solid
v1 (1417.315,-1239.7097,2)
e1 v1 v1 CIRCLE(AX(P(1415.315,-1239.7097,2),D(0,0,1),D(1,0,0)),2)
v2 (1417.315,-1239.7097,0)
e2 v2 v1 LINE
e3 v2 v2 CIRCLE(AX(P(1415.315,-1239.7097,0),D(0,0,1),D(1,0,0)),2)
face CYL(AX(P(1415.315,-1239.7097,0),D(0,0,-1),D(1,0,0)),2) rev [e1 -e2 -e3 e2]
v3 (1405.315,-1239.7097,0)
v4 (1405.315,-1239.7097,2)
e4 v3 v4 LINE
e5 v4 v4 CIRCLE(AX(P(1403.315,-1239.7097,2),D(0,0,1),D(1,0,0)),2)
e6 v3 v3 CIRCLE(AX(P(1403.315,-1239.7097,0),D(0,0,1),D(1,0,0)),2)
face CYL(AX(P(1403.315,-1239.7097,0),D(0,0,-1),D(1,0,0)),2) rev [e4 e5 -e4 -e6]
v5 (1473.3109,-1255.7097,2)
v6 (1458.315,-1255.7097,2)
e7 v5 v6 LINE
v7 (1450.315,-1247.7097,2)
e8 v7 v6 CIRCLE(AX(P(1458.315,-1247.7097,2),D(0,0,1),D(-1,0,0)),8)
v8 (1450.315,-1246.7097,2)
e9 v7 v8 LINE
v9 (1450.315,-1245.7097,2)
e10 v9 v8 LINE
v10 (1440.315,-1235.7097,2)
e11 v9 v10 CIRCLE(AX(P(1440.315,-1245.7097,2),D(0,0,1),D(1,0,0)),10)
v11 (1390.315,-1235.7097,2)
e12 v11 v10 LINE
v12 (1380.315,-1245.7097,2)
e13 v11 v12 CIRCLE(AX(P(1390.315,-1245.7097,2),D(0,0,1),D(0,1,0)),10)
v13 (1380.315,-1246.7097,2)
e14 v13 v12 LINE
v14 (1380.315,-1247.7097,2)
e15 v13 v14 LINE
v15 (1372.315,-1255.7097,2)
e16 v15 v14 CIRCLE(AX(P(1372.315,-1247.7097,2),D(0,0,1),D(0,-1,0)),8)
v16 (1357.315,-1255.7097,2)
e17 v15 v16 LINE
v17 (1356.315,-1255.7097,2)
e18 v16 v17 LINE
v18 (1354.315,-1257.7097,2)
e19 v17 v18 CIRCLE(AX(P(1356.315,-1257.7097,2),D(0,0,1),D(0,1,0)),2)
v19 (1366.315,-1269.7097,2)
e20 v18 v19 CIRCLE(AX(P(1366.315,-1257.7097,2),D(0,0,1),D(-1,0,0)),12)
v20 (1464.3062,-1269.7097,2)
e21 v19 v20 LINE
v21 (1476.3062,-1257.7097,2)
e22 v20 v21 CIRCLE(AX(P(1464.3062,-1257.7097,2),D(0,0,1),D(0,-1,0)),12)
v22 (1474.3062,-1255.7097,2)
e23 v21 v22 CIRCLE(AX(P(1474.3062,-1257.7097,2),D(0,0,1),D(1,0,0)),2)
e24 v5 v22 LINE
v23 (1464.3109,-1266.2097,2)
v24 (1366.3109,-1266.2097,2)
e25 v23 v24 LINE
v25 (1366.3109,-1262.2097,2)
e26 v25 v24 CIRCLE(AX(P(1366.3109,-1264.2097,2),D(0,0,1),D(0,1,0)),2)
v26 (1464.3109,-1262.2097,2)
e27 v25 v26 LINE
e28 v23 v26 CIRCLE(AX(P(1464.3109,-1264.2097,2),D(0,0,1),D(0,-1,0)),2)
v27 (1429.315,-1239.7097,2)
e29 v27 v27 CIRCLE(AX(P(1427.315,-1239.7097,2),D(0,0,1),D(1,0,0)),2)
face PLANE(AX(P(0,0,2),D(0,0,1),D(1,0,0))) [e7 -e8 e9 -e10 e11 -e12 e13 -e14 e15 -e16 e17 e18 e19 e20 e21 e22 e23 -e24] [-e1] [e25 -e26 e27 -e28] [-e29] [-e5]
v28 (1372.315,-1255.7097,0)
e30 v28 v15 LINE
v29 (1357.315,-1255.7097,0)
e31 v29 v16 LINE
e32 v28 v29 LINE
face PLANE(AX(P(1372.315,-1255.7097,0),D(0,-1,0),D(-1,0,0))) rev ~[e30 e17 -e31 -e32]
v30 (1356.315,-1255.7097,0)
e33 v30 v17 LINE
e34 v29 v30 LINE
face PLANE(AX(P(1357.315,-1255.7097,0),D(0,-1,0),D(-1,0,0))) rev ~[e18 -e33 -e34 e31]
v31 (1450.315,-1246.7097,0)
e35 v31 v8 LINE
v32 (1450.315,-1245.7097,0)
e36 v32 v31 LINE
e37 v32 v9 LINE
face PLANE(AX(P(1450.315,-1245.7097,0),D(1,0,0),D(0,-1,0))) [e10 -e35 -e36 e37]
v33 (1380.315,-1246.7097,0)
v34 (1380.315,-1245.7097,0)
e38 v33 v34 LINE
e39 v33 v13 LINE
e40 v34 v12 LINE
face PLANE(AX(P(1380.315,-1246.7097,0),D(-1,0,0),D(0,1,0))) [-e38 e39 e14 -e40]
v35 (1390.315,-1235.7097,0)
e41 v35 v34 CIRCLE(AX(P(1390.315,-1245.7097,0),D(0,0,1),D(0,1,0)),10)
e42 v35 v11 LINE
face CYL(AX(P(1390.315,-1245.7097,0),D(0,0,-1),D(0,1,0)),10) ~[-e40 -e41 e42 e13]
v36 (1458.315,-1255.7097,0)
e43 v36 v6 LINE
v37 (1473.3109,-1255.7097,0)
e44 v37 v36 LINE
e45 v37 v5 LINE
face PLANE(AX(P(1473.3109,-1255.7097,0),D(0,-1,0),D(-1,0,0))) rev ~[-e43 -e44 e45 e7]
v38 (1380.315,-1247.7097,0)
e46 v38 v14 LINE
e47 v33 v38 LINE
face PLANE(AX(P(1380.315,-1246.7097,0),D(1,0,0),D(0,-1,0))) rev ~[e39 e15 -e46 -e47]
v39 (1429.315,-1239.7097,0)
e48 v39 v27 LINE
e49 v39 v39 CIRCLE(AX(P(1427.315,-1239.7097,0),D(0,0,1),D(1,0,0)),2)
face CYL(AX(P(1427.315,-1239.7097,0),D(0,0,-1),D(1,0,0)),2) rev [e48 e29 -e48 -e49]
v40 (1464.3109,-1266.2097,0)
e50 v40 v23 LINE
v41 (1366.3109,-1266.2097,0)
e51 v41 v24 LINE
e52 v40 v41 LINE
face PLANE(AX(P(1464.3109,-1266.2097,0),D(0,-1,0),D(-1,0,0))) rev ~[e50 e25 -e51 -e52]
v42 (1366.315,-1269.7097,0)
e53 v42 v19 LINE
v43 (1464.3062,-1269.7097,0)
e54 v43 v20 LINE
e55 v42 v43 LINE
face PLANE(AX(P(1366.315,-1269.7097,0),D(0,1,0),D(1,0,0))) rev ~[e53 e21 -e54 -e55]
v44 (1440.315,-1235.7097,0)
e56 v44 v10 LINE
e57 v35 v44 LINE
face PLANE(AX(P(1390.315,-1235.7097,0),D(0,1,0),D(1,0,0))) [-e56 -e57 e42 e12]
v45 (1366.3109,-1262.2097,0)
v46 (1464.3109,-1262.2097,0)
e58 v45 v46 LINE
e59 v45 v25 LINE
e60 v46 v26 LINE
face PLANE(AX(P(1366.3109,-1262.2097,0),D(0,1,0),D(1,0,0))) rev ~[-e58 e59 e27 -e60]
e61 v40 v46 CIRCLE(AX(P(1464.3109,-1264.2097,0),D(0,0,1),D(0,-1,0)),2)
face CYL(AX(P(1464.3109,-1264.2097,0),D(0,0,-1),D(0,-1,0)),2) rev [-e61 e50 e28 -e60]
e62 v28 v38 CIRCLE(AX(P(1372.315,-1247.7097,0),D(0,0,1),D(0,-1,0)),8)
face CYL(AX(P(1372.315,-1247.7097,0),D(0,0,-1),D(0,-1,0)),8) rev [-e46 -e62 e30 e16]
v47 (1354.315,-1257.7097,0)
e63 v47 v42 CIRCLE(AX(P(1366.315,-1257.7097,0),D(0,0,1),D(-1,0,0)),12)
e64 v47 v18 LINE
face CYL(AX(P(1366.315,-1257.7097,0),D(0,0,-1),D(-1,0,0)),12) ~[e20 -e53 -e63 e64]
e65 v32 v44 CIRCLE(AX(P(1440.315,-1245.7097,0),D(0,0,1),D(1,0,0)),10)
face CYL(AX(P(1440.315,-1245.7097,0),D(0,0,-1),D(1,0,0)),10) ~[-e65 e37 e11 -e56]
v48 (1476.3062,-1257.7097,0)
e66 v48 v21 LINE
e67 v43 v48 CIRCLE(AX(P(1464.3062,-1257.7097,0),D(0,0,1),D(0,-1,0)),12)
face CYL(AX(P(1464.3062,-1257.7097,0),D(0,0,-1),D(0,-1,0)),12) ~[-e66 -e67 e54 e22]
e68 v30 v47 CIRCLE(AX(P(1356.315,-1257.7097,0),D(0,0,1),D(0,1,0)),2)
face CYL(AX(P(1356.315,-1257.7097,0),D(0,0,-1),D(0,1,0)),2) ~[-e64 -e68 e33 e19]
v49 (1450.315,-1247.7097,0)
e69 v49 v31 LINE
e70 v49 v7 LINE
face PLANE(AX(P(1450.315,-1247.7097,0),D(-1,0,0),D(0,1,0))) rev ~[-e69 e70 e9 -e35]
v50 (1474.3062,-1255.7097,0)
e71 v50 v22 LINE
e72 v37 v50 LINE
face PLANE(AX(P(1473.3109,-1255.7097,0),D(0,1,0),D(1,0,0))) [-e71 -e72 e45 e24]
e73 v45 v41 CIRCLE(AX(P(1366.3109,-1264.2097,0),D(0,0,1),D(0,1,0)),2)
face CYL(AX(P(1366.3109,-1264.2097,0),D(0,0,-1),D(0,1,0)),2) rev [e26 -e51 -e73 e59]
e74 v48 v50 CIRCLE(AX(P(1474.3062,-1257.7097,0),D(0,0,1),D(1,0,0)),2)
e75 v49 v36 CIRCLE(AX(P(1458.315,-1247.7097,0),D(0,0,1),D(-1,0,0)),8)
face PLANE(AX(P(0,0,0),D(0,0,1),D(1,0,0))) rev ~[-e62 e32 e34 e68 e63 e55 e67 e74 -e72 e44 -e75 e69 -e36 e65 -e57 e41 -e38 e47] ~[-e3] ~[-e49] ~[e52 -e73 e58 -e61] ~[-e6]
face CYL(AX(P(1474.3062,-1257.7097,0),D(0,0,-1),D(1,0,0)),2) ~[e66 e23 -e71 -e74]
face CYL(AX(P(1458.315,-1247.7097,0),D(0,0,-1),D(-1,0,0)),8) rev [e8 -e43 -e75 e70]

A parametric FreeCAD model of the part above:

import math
import FreeCAD as App
import Part
import Sketcher

V = App.Vector
Q = App.Units.Quantity

doc = App.newDocument("Part")
body = doc.addObject("PartDesign::Body", "Body")

# Sketch on XY plane
sketch1 = body.newObject("Sketcher::SketchObject", "Sketch")
sketch1.AttachmentSupport = (doc.getObject("XY_Plane"), [""])
sketch1.MapMode = "FlatFace"
sketch1.addGeometry([
    Part.LineSegment(V(1380.3, -1245.7, 0), V(1380.3, -1247.7, 0)),  # 0
    Part.ArcOfCircle(Part.Circle(V(1372.3, -1247.7, 0), V(0, 0, 1), 8), math.radians(-90), math.radians(0)),  # 1
    Part.LineSegment(V(1372.3, -1255.7, 0), V(1356.3, -1255.7, 0)),  # 2
    Part.ArcOfCircle(Part.Circle(V(1356.3, -1257.7, 0), V(0, 0, 1), 2), math.radians(90), math.radians(180)),  # 3
    Part.ArcOfCircle(Part.Circle(V(1366.3, -1257.7, 0), V(0, 0, 1), 12), math.radians(180), math.radians(270)),  # 4
    Part.LineSegment(V(1366.3, -1269.7, 0), V(1464.3, -1269.7, 0)),  # 5
    Part.ArcOfCircle(Part.Circle(V(1464.3, -1257.7, 0), V(0, 0, 1), 12), math.radians(-90), math.radians(0)),  # 6
    Part.ArcOfCircle(Part.Circle(V(1474.3, -1257.7, 0), V(0, 0, 1), 2), math.radians(0), math.radians(90)),  # 7
    Part.LineSegment(V(1474.3, -1255.7, 0), V(1458.3, -1255.7, 0)),  # 8
    Part.ArcOfCircle(Part.Circle(V(1458.3, -1247.7, 0), V(0, 0, 1), 8), math.radians(180), math.radians(270)),  # 9
    Part.LineSegment(V(1450.3, -1247.7, 0), V(1450.3, -1245.7, 0)),  # 10
    Part.ArcOfCircle(Part.Circle(V(1440.3, -1245.7, 0), V(0, 0, 1), 10), math.radians(0), math.radians(90)),  # 11
    Part.LineSegment(V(1440.3, -1235.7, 0), V(1390.3, -1235.7, 0)),  # 12
    Part.ArcOfCircle(Part.Circle(V(1390.3, -1245.7, 0), V(0, 0, 1), 10), math.radians(90), math.radians(180)),  # 13
    Part.ArcOfCircle(Part.Circle(V(1366.3, -1264.2, 0), V(0, 0, 1), 2), math.radians(90), math.radians(270)),  # 14
    Part.LineSegment(V(1366.3, -1262.2, 0), V(1464.3, -1262.2, 0)),  # 15
    Part.ArcOfCircle(Part.Circle(V(1464.3, -1264.2, 0), V(0, 0, 1), 2), math.radians(-90), math.radians(90)),  # 16
    Part.LineSegment(V(1464.3, -1266.2, 0), V(1366.3, -1266.2, 0)),  # 17
    Part.Circle(V(1403.3, -1239.7, 0), V(0, 0, 1), 2),  # 18
    Part.Circle(V(1415.3, -1239.7, 0), V(0, 0, 1), 2),  # 19
    Part.Circle(V(1427.3, -1239.7, 0), V(0, 0, 1), 2),  # 20
], False)
sketch1.addConstraint([
    Sketcher.Constraint("Tangent", 0, 2, 1, 2),
    Sketcher.Constraint("Tangent", 1, 1, 2, 1),
    Sketcher.Constraint("Tangent", 2, 2, 3, 1),
    Sketcher.Constraint("Tangent", 3, 2, 4, 1),
    Sketcher.Constraint("Tangent", 4, 2, 5, 1),
    Sketcher.Constraint("Tangent", 5, 2, 6, 1),
    Sketcher.Constraint("Tangent", 6, 2, 7, 1),
    Sketcher.Constraint("Tangent", 7, 2, 8, 1),
    Sketcher.Constraint("Tangent", 8, 2, 9, 2),
    Sketcher.Constraint("Tangent", 9, 1, 10, 1),
    Sketcher.Constraint("Tangent", 10, 2, 11, 1),
    Sketcher.Constraint("Tangent", 11, 2, 12, 1),
    Sketcher.Constraint("Tangent", 12, 2, 13, 1),
    Sketcher.Constraint("Tangent", 13, 2, 0, 1),
    Sketcher.Constraint("Tangent", 14, 1, 15, 1),
    Sketcher.Constraint("Tangent", 15, 2, 16, 2),
    Sketcher.Constraint("Tangent", 16, 1, 17, 1),
    Sketcher.Constraint("Tangent", 17, 2, 14, 2),
    Sketcher.Constraint("Vertical", 0),
    Sketcher.Constraint("Horizontal", 2),
    Sketcher.Constraint("Horizontal", 5),
    Sketcher.Constraint("Horizontal", 8),
    Sketcher.Constraint("Vertical", 10),
    Sketcher.Constraint("Horizontal", 12),
    Sketcher.Constraint("Horizontal", 15),
    Sketcher.Constraint("Horizontal", 17),
    Sketcher.Constraint("Equal", 4, 6),
    Sketcher.Constraint("Equal", 3, 7),
    Sketcher.Constraint("Equal", 1, 9),
    Sketcher.Constraint("Equal", 11, 13),
    Sketcher.Constraint("Equal", 7, 14),
    Sketcher.Constraint("Equal", 16, 18),
    Sketcher.Constraint("Equal", 18, 19),
    Sketcher.Constraint("Equal", 19, 20),
    Sketcher.Constraint("Horizontal", 3, 3, 4, 3),
    Sketcher.Constraint("Horizontal", 6, 3, 7, 3),
    Sketcher.Constraint("Horizontal", 18, 3, 19, 3),
    Sketcher.Constraint("Horizontal", 19, 3, 20, 3),
    Sketcher.Constraint("Diameter", 18, Q("4 mm")),
    Sketcher.Constraint("Radius", 1, Q("8 mm")),
    Sketcher.Constraint("Radius", 4, Q("12 mm")),
    Sketcher.Constraint("Radius", 11, Q("10 mm")),
    Sketcher.Constraint("DistanceX", 2, 2, 2, 1, Q("16 mm")),
    Sketcher.Constraint("DistanceX", 12, 2, 12, 1, Q("50 mm")),
    Sketcher.Constraint("DistanceX", 15, 1, 15, 2, Q("98 mm")),
    Sketcher.Constraint("DistanceY", 0, 2, 0, 1, Q("2 mm")),
    Sketcher.Constraint("DistanceX", 13, 3, 18, 3, Q("13 mm")),
    Sketcher.Constraint("DistanceY", 13, 3, 18, 3, Q("6 mm")),
    Sketcher.Constraint("DistanceX", 18, 3, 19, 3, Q("12 mm")),
    Sketcher.Constraint("DistanceX", 19, 3, 20, 3, Q("12 mm")),
    Sketcher.Constraint("DistanceY", 14, 3, 4, 3, Q("6.5 mm")),
    Sketcher.Constraint("DistanceX", 5, 1, 5, 2, Q("97.9912 mm")),
    Sketcher.Constraint("DistanceX", -1, 1, 1, 3, Q("1372.315 mm")),
    Sketcher.Constraint("DistanceX", -1, 1, 14, 3, Q("1366.311 mm")),
    Sketcher.Constraint("DistanceY", 1, 3, -1, 1, Q("1247.7097 mm")),
])
pad1 = body.newObject("PartDesign::Pad", "Pad")
pad1.Profile = sketch1
pad1.Length = 2

doc.recompute()
